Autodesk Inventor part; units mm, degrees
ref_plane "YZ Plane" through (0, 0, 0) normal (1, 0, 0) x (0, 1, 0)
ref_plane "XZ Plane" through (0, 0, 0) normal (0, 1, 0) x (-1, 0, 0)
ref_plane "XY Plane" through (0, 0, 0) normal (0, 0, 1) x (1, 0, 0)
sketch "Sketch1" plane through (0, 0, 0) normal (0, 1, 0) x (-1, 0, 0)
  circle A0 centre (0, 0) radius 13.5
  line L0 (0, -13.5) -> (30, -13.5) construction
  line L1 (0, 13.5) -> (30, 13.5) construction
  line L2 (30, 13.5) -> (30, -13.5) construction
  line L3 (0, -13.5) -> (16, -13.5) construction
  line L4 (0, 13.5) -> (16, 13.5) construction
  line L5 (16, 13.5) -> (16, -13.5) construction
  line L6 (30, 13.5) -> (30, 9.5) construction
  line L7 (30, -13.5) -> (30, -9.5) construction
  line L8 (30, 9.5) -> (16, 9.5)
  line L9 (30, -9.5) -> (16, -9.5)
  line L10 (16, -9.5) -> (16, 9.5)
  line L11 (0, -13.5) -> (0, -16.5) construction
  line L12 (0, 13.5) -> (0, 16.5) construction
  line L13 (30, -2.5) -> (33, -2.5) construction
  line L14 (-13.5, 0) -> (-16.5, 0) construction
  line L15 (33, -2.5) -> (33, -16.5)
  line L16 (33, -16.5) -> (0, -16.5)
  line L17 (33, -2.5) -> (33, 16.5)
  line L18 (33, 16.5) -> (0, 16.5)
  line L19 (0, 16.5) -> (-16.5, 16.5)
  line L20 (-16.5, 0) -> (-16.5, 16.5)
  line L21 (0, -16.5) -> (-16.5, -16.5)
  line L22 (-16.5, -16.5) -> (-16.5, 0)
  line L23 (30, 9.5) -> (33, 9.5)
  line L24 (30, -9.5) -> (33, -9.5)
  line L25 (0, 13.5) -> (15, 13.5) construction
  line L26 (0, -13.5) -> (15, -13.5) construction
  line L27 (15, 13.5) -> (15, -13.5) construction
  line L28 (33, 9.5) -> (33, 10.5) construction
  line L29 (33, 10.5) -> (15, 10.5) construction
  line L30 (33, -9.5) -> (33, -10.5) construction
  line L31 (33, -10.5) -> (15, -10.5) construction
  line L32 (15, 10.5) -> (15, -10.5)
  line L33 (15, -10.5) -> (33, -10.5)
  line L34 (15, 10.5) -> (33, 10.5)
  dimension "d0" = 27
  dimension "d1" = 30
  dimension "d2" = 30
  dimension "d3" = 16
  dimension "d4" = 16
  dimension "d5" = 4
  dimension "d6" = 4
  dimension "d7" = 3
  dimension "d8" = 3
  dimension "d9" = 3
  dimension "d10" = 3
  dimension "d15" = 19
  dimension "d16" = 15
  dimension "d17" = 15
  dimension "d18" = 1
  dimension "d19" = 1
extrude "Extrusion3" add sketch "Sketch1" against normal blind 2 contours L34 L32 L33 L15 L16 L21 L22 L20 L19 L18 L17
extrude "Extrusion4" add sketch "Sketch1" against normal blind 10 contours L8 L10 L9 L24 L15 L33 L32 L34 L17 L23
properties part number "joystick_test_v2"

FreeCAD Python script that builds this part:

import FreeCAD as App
import Part
import Sketcher
Q = App.Units.Quantity

doc = App.newDocument("Part")
params = doc.addObject("Spreadsheet::Sheet", "Params")
for row, (alias, value) in enumerate([
    ("sketch1_diameter", "27 mm"),
    ("sketch1_width", "18 mm"),
    ("sketch1_height", "6 mm"),
    ("sketch1_width2", "49.5 mm"),
    ("pad1_length", "2 mm"),
    ("sketch2_height", "1 mm"),
    ("sketch2_height2", "19 mm"),
    ("sketch2_width", "17 mm"),
    ("pad2_length", "10 mm"),
], start=1):
    params.set(f"A{row}", alias)
    params.set(f"B{row}", "=" + value)
    params.setAlias(f"B{row}", alias)

body = doc.addObject("PartDesign::Body", "Body")

# Sketch on XZ plane
sketch1 = doc.addObject("Sketcher::SketchObject", "Sketch")
body.addObject(sketch1)
sketch1.AttachmentSupport = (doc.XZ_Plane, [""])
sketch1.MapMode = "FlatFace"
sketch1.addGeometry([
    Part.LineSegment(App.Vector(-15, 10.5, 0), App.Vector(-33, 10.5, 0)),  # 0
    Part.LineSegment(App.Vector(-33, 10.5, 0), App.Vector(-33, 16.5, 0)),  # 1
    Part.LineSegment(App.Vector(-33, 16.5, 0), App.Vector(16.5, 16.5, 0)),  # 2
    Part.LineSegment(App.Vector(16.5, 16.5, 0), App.Vector(16.5, -16.5, 0)),  # 3
    Part.LineSegment(App.Vector(16.5, -16.5, 0), App.Vector(-33, -16.5, 0)),  # 4
    Part.LineSegment(App.Vector(-33, -16.5, 0), App.Vector(-33, -10.5, 0)),  # 5
    Part.LineSegment(App.Vector(-33, -10.5, 0), App.Vector(-15, -10.5, 0)),  # 6
    Part.LineSegment(App.Vector(-15, -10.5, 0), App.Vector(-15, 10.5, 0)),  # 7
    Part.Circle(App.Vector(0, 0, 0), App.Vector(0, 0, 1), 13.5),  # 8
], False)
sketch1.addConstraint([
    Sketcher.Constraint("Coincident", 0, 2, 1, 1),
    Sketcher.Constraint("Coincident", 1, 2, 2, 1),
    Sketcher.Constraint("Coincident", 2, 2, 3, 1),
    Sketcher.Constraint("Coincident", 3, 2, 4, 1),
    Sketcher.Constraint("Coincident", 4, 2, 5, 1),
    Sketcher.Constraint("Coincident", 5, 2, 6, 1),
    Sketcher.Constraint("Coincident", 6, 2, 7, 1),
    Sketcher.Constraint("Coincident", 7, 2, 0, 1),
    Sketcher.Constraint("Horizontal", 0),
    Sketcher.Constraint("Vertical", 1),
    Sketcher.Constraint("Horizontal", 2),
    Sketcher.Constraint("Vertical", 3),
    Sketcher.Constraint("Horizontal", 4),
    Sketcher.Constraint("Vertical", 5),
    Sketcher.Constraint("Horizontal", 6),
    Sketcher.Constraint("Vertical", 7),
    Sketcher.Constraint("Coincident", 8, 3, -1, 1),
    Sketcher.Constraint("Symmetric", 1, 2, 4, 2, -1),
    Sketcher.Constraint("Equal", 1, 5),
    Sketcher.Constraint("Diameter", 8, Q("27 mm")),
    Sketcher.Constraint("DistanceX", 6, 2, -1, 1, Q("15 mm")),
    Sketcher.Constraint("DistanceY", 3, 2, 0, 2, Q("27 mm")),
    Sketcher.Constraint("DistanceX", 0, 2, 0, 1, Q("18 mm")),
    Sketcher.Constraint("DistanceY", 1, 1, 1, 2, Q("6 mm")),
    Sketcher.Constraint("DistanceX", 2, 1, 2, 2, Q("49.5 mm")),
])
sketch1.setExpression("Constraints[19]", "Params.sketch1_diameter")
sketch1.setExpression("Constraints[22]", "Params.sketch1_width")
sketch1.setExpression("Constraints[23]", "Params.sketch1_height")
sketch1.setExpression("Constraints[24]", "Params.sketch1_width2")
pad1 = doc.addObject("PartDesign::Pad", "Pad")
body.addObject(pad1)
pad1.Profile = sketch1
pad1.setExpression("Length", "Params.pad1_length")

# Sketch on XZ plane
sketch2 = doc.addObject("Sketcher::SketchObject", "Sketch001")
body.addObject(sketch2)
sketch2.AttachmentSupport = (doc.XZ_Plane, [""])
sketch2.MapMode = "FlatFace"
sketch2.addGeometry([
    Part.LineSegment(App.Vector(-16, 9.5, 0), App.Vector(-33, 9.5, 0)),  # 0
    Part.LineSegment(App.Vector(-33, 9.5, 0), App.Vector(-33, 10.5, 0)),  # 1
    Part.LineSegment(App.Vector(-33, 10.5, 0), App.Vector(-15, 10.5, 0)),  # 2
    Part.LineSegment(App.Vector(-15, 10.5, 0), App.Vector(-15, -10.5, 0)),  # 3
    Part.LineSegment(App.Vector(-15, -10.5, 0), App.Vector(-33, -10.5, 0)),  # 4
    Part.LineSegment(App.Vector(-33, -10.5, 0), App.Vector(-33, -9.5, 0)),  # 5
    Part.LineSegment(App.Vector(-33, -9.5, 0), App.Vector(-16, -9.5, 0)),  # 6
    Part.LineSegment(App.Vector(-16, -9.5, 0), App.Vector(-16, 9.5, 0)),  # 7
], False)
sketch2.addConstraint([
    Sketcher.Constraint("Coincident", 0, 2, 1, 1),
    Sketcher.Constraint("Coincident", 1, 2, 2, 1),
    Sketcher.Constraint("Coincident", 2, 2, 3, 1),
    Sketcher.Constraint("Coincident", 3, 2, 4, 1),
    Sketcher.Constraint("Coincident", 4, 2, 5, 1),
    Sketcher.Constraint("Coincident", 5, 2, 6, 1),
    Sketcher.Constraint("Coincident", 6, 2, 7, 1),
    Sketcher.Constraint("Coincident", 7, 2, 0, 1),
    Sketcher.Constraint("Horizontal", 0),
    Sketcher.Constraint("Vertical", 1),
    Sketcher.Constraint("Horizontal", 2),
    Sketcher.Constraint("Vertical", 3),
    Sketcher.Constraint("Horizontal", 4),
    Sketcher.Constraint("Vertical", 5),
    Sketcher.Constraint("Horizontal", 6),
    Sketcher.Constraint("Vertical", 7),
    Sketcher.Constraint("Symmetric", 1, 2, 4, 2, -1),
    Sketcher.Constraint("Equal", 1, 5),
    Sketcher.Constraint("DistanceY", 1, 1, 1, 2, Q("1 mm")),
    Sketcher.Constraint("DistanceY", 7, 1, 7, 2, Q("19 mm")),
    Sketcher.Constraint("DistanceX", 2, 2, -1, 1, Q("15 mm")),
    Sketcher.Constraint("DistanceX", 6, 2, -1, 1, Q("16 mm")),
    Sketcher.Constraint("DistanceX", 0, 2, 0, 1, Q("17 mm")),
])
sketch2.setExpression("Constraints[18]", "Params.sketch2_height")
sketch2.setExpression("Constraints[19]", "Params.sketch2_height2")
sketch2.setExpression("Constraints[22]", "Params.sketch2_width")
pad2 = doc.addObject("PartDesign::Pad", "Pad001")
body.addObject(pad2)
pad2.Profile = sketch2
pad2.setExpression("Length", "Params.pad2_length")

doc.recompute()
